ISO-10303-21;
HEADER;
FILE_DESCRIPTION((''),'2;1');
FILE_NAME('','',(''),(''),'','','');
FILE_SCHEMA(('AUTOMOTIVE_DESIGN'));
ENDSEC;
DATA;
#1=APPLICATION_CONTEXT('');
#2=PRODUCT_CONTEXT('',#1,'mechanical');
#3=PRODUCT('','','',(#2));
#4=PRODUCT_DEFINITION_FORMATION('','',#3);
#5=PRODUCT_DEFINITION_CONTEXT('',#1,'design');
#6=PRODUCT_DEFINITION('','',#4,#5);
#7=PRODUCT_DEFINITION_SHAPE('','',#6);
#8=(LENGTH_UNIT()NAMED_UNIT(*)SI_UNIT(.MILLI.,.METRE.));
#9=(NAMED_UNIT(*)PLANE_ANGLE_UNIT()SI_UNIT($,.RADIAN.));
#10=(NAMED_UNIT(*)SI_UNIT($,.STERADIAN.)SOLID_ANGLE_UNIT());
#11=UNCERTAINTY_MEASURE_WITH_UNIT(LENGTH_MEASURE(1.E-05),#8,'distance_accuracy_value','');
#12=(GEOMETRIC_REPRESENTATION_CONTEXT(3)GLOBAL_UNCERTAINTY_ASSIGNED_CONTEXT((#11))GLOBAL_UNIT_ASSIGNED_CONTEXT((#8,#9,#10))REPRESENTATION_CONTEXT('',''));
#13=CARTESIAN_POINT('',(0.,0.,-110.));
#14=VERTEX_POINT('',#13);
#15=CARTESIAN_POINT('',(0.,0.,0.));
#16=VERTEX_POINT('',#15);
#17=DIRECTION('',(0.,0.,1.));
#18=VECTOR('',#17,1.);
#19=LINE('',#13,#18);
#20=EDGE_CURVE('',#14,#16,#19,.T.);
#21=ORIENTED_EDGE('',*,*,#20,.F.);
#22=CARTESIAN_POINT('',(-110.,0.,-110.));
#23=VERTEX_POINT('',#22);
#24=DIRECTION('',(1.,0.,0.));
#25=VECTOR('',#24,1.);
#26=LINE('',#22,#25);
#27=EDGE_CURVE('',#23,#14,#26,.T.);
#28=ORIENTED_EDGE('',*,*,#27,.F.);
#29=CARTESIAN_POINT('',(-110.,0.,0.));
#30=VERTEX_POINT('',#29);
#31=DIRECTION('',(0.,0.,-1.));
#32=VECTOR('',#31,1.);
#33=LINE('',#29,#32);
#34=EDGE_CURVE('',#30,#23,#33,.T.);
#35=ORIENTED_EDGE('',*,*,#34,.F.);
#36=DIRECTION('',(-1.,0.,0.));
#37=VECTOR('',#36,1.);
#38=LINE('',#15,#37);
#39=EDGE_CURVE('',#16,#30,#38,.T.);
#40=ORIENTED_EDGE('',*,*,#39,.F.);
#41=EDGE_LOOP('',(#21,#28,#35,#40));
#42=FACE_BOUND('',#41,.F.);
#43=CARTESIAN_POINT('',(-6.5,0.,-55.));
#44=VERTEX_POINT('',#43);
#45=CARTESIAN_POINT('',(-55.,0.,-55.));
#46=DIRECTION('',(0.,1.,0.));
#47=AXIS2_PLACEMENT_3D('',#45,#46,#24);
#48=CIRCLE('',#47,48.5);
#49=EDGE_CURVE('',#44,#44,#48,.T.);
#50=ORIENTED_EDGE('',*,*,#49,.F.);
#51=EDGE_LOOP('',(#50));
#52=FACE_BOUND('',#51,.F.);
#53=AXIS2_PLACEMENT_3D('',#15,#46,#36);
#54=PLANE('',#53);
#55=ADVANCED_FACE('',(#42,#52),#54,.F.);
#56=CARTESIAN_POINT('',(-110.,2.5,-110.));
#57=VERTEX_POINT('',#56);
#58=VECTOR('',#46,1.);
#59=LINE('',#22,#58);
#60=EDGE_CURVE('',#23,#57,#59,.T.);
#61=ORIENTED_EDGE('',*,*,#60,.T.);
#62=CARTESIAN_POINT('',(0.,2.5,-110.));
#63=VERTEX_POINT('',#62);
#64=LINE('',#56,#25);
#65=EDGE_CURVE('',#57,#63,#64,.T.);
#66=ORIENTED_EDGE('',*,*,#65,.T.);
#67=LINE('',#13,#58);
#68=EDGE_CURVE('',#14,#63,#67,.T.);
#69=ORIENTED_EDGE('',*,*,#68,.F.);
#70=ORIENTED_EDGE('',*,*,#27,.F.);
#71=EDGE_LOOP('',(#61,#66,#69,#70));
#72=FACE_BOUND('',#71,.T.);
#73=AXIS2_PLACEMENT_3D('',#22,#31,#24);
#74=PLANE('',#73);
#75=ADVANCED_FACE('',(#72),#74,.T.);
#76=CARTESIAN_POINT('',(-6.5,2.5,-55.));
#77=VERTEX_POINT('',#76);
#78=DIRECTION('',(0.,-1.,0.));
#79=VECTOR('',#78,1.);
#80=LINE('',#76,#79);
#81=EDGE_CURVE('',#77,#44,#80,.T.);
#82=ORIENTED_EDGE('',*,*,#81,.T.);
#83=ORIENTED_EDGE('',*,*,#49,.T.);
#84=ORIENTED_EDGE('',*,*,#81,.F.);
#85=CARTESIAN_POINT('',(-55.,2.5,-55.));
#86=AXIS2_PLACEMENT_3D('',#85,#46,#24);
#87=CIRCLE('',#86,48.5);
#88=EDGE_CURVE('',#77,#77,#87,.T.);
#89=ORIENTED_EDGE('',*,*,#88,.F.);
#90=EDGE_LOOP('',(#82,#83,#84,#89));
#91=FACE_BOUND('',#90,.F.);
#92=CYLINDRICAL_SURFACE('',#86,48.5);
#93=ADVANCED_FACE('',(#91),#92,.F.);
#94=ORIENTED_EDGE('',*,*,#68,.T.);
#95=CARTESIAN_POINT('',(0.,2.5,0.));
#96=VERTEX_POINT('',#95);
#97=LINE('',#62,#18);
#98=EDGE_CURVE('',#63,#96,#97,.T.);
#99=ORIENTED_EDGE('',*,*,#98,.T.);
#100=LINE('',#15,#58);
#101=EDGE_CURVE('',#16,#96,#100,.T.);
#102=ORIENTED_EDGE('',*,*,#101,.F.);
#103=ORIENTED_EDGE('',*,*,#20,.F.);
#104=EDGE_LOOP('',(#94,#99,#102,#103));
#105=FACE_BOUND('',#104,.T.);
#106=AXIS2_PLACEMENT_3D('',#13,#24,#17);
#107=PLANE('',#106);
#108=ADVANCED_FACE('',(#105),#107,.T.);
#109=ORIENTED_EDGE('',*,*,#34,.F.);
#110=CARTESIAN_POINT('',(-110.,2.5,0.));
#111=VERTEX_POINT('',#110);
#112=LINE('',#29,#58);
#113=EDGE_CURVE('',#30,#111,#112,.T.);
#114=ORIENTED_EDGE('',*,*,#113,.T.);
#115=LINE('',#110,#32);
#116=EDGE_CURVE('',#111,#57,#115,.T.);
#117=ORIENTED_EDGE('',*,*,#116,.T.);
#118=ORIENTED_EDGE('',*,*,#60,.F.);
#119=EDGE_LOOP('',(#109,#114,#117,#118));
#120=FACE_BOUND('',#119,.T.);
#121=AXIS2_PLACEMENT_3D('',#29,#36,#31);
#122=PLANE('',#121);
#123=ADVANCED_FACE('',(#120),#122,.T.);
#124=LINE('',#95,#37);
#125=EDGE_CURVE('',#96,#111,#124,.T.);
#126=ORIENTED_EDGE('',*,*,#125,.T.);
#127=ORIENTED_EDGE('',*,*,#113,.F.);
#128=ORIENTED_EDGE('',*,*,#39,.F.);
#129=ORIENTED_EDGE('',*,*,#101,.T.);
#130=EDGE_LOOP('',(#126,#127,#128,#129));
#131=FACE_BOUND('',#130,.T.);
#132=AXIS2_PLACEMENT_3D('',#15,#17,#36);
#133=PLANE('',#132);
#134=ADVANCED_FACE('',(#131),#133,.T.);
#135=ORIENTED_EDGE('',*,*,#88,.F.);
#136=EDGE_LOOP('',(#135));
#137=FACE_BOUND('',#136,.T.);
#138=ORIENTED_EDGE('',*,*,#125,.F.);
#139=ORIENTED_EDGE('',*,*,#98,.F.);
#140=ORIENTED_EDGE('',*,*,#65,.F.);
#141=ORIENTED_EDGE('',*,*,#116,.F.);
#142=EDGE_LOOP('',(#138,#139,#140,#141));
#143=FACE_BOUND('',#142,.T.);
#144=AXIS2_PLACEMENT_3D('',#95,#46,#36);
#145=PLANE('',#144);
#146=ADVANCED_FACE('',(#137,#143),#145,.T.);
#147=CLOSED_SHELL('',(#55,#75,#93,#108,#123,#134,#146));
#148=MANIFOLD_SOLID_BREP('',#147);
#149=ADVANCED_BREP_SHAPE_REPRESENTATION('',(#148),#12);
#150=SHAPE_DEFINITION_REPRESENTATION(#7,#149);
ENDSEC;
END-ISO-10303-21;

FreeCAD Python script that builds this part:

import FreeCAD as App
import Part
import Sketcher
Q = App.Units.Quantity

doc = App.newDocument("Part")
body = doc.addObject("PartDesign::Body", "Body")

# Sketch on XZ plane
sketch1 = body.newObject("Sketcher::SketchObject", "Sketch")
sketch1.AttachmentSupport = (doc.getObject("XZ_Plane"), [""])
sketch1.MapMode = "FlatFace"
sketch1.addGeometry([
    Part.LineSegment(App.Vector(-110, 0, 0), App.Vector(0, 0, 0)),
    Part.LineSegment(App.Vector(0, 0, 0), App.Vector(0, -110, 0)),
    Part.LineSegment(App.Vector(0, -110, 0), App.Vector(-110, -110, 0)),
    Part.LineSegment(App.Vector(-110, -110, 0), App.Vector(-110, 0, 0)),
], False)
sketch1.addConstraint([
    Sketcher.Constraint("Coincident", 0, 2, 1, 1),
    Sketcher.Constraint("Coincident", 1, 2, 2, 1),
    Sketcher.Constraint("Coincident", 2, 2, 3, 1),
    Sketcher.Constraint("Coincident", 3, 2, 0, 1),
    Sketcher.Constraint("Horizontal", 0),
    Sketcher.Constraint("Vertical", 1),
    Sketcher.Constraint("Horizontal", 2),
    Sketcher.Constraint("Vertical", 3),
    Sketcher.Constraint("Coincident", 0, 2, -1, 1),
    Sketcher.Constraint("Equal", 2, 1),
    Sketcher.Constraint("DistanceX", 0, 1, 0, 2, Q("110 mm")),
])
pad1 = body.newObject("PartDesign::Pad", "Pad")
pad1.Profile = sketch1
pad1.Length = 2.5
pad1.Reversed = True

# Sketch on XZ plane
sketch2 = body.newObject("Sketcher::SketchObject", "Sketch001")
sketch2.AttachmentSupport = (doc.getObject("XZ_Plane"), [""])
sketch2.MapMode = "FlatFace"
sketch2.AttachmentOffset = App.Placement(App.Vector(0, 0, -2.5), App.Rotation())
sketch2.addGeometry(Part.Circle(App.Vector(-55, -55, 0), App.Vector(0, 0, 1), 48), False)
sketch2.addConstraint([
    Sketcher.Constraint("Diameter", 0, Q("97 mm")),
    Sketcher.Constraint("DistanceX", 0, 3, -1, 1, Q("55 mm")),
    Sketcher.Constraint("DistanceY", 0, 3, -1, 1, Q("55 mm")),
])
pocket1 = body.newObject("PartDesign::Pocket", "Pocket")
pocket1.Profile = sketch2
pocket1.Length = 2.5
pocket1.Reversed = True

doc.recompute()
